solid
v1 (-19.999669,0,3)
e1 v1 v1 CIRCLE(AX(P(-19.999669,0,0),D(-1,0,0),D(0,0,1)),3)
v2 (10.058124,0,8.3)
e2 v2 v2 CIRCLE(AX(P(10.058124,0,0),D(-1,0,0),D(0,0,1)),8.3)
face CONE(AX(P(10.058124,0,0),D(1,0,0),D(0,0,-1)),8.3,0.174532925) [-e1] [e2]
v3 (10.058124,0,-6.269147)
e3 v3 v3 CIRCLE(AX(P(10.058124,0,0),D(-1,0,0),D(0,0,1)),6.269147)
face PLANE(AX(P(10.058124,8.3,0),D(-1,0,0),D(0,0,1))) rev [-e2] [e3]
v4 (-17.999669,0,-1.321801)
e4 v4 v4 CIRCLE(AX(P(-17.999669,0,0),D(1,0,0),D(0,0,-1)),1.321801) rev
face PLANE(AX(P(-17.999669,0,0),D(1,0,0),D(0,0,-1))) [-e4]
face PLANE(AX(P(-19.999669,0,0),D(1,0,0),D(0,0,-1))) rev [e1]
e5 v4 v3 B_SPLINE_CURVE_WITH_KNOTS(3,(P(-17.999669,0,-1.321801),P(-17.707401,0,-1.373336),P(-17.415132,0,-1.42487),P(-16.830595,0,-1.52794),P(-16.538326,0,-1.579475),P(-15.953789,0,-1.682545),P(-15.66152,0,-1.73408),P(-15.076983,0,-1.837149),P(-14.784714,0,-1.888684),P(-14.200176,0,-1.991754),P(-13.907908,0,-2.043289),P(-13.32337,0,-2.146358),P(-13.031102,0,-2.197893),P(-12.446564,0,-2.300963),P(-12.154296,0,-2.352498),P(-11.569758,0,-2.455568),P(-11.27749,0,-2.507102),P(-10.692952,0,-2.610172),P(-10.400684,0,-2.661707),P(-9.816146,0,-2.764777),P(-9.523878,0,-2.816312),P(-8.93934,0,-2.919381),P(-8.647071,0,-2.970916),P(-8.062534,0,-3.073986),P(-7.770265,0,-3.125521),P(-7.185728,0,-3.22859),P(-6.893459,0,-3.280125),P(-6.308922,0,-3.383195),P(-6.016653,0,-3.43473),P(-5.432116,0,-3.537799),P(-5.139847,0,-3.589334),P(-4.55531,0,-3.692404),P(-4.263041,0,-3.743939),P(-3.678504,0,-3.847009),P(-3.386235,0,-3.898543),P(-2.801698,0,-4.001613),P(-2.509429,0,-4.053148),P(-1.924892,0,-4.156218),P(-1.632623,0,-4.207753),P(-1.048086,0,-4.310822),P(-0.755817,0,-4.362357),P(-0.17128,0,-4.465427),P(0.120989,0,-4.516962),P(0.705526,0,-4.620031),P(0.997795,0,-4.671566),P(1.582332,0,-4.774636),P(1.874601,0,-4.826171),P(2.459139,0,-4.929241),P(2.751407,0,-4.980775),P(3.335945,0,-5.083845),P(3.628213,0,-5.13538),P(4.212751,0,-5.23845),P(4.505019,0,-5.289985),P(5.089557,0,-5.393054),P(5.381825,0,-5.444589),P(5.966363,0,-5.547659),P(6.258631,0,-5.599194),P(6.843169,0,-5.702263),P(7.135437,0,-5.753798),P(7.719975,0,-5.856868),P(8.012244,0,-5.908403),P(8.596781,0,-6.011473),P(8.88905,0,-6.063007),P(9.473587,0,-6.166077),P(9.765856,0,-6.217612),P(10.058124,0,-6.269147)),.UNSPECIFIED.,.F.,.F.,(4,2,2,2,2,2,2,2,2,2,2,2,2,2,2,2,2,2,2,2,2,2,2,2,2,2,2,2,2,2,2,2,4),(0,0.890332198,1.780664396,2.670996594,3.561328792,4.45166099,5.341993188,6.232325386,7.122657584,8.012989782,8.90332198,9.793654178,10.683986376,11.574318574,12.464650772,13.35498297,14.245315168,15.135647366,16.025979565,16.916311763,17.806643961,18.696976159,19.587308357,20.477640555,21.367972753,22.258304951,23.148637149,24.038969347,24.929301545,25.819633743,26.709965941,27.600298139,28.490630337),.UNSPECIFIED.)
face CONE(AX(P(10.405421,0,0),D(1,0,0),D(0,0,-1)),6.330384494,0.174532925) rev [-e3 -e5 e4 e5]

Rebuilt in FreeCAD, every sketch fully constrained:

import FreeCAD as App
import Part
import Sketcher

V = App.Vector
Q = App.Units.Quantity


def faces_at(feature, points):
    """Names of the faces that lie closest to the given points."""
    faces = feature.Shape.Faces
    near = lambda p: min(range(len(faces)), key=lambda i: faces[i].distToShape(Part.Vertex(*p))[0])
    return sorted({f"Face{near(p) + 1}" for p in points})


def add_polygon(sketch, points):
    """Adds a closed chain of lines whose ends are joined by coincident constraints."""
    first, n = sketch.GeometryCount, len(points)
    for a, b in zip(points, points[1:] + points[:1]):
        sketch.addGeometry(Part.LineSegment(App.Vector(*a, 0), App.Vector(*b, 0)), False)
    for i in range(n):
        sketch.addConstraint(Sketcher.Constraint("Coincident", first + i, 2, first + (i + 1) % n, 1))

doc = App.newDocument("Part")
body = doc.addObject("PartDesign::Body", "Body")

sketch1 = body.newObject("Sketcher::SketchObject", "Sketch")
sketch1.AttachmentSupport = (doc.getObject("XY_Plane"), [""])
sketch1.MapMode = "FlatFace"
add_polygon(sketch1, [(-20, 3), (-20, 0), (10.1, 0), (10.1, 8.3)])
sketch1.addConstraint([
    Sketcher.Constraint("Vertical", 0),
    Sketcher.Constraint("Horizontal", 1),
    Sketcher.Constraint("Vertical", 2),
    Sketcher.Constraint("PointOnObject", 0, 2, -1),
    Sketcher.Constraint("DistanceY", 0, 2, 0, 1, Q("3 mm")),
    Sketcher.Constraint("Angle", 3, Q("-170 deg")),
    Sketcher.Constraint("DistanceY", 2, 1, 2, 2, Q("8.3 mm")),
    Sketcher.Constraint("DistanceX", 0, 2, -1, 1, Q("19.999669 mm")),
])
revolution = body.newObject("PartDesign::Revolution", "Revolution")
revolution.Profile = sketch1
revolution.ReferenceAxis = (sketch1, ["H_Axis"])
revolution.Angle = 360
doc.recompute()

thickness = body.newObject("PartDesign::Thickness", "Thickness")
thickness.Base = (revolution, faces_at(revolution, [(10.058, 0, 0)]))
thickness.Value = 2
thickness.Reversed = True
thickness.Join = "Intersection"

doc.recompute()
